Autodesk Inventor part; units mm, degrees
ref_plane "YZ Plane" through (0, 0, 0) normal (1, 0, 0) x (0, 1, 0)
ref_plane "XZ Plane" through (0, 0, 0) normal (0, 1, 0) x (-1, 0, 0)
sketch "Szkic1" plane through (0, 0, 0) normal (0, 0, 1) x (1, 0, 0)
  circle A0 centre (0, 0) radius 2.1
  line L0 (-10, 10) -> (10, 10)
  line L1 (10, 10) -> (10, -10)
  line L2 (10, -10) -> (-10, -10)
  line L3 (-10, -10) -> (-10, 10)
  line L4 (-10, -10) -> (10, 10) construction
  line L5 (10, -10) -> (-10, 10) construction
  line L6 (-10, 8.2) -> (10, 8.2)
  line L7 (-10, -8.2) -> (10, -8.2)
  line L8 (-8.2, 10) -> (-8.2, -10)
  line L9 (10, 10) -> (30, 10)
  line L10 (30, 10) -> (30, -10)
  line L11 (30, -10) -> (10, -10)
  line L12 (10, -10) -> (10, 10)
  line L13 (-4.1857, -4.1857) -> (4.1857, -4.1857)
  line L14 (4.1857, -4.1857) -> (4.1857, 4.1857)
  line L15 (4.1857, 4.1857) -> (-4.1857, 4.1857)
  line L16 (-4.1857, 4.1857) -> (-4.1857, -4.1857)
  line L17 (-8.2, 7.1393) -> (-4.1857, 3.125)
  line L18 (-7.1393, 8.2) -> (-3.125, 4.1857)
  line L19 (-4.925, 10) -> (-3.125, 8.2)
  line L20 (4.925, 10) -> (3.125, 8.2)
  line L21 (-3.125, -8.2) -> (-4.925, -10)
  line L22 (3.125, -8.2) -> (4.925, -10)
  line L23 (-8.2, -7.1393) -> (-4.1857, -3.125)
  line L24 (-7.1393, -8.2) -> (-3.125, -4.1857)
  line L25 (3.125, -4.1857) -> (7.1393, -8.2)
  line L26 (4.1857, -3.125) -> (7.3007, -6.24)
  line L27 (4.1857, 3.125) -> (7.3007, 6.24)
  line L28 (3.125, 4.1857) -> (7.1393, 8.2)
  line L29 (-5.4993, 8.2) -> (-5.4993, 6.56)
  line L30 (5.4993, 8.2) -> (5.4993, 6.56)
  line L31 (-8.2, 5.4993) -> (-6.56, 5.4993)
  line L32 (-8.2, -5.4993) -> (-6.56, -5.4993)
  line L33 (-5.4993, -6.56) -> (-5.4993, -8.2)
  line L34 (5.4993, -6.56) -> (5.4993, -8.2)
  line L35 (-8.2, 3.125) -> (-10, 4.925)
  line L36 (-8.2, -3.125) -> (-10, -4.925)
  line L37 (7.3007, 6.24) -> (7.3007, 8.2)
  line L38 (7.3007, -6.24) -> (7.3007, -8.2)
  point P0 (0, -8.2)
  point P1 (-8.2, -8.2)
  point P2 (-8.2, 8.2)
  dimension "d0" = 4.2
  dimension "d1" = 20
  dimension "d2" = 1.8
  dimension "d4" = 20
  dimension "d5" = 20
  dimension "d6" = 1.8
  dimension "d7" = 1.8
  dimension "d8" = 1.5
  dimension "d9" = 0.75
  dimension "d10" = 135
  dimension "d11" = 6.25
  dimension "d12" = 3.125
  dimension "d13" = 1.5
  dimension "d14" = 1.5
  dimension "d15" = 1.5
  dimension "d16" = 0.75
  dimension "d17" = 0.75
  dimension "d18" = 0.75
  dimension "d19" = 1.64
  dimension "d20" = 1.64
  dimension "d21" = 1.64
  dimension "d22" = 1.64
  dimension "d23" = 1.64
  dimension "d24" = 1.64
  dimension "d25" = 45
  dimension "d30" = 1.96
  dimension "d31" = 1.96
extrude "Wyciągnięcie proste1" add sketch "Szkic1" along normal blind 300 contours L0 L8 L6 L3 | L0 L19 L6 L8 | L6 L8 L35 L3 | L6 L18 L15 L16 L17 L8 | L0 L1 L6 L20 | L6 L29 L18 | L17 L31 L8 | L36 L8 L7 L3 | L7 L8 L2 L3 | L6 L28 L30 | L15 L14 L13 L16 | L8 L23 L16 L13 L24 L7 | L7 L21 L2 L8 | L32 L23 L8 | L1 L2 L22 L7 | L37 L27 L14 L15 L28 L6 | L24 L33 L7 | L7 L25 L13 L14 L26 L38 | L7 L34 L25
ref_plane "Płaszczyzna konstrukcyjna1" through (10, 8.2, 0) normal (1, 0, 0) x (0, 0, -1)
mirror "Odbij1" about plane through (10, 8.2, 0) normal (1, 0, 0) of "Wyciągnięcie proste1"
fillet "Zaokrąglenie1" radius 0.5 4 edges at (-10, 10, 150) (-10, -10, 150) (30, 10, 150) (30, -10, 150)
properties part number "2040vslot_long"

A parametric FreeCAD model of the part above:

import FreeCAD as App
import Part
import Sketcher


def edges_at(feature, points):
    """Names of the edges that pass closest to the given points."""
    edges = feature.Shape.Edges
    near = lambda p: min(range(len(edges)), key=lambda i: edges[i].distToShape(Part.Vertex(*p))[0])
    return sorted({f"Edge{near(p) + 1}" for p in points})


def add_polygon(sketch, points):
    """Adds a closed chain of lines whose ends are joined by coincident constraints."""
    first, n = sketch.GeometryCount, len(points)
    for a, b in zip(points, points[1:] + points[:1]):
        sketch.addGeometry(Part.LineSegment(App.Vector(*a, 0), App.Vector(*b, 0)), False)
    for i in range(n):
        sketch.addConstraint(Sketcher.Constraint("Coincident", first + i, 2, first + (i + 1) % n, 1))

doc = App.newDocument("Part")
params = doc.addObject("Spreadsheet::Sheet", "Params")
for row, (alias, value) in enumerate([
    ("sketch1_diameter", "4.2 mm"),
    ("sketch1_height", "1.8 mm"),
    ("sketch1_width", "1.64 mm"),
    ("sketch1_width2", "6.25 mm"),
    ("sketch1_height2", "1.96 mm"),
    ("pad1_length", "300 mm"),
    ("fillet_radius", "0.5 mm"),
], start=1):
    params.set(f"A{row}", alias)
    params.set(f"B{row}", "=" + value)
    params.setAlias(f"B{row}", alias)

body = doc.addObject("PartDesign::Body", "Body")

# Sketch on XY plane
sketch1 = doc.addObject("Sketcher::SketchObject", "Sketch")
body.addObject(sketch1)
sketch1.AttachmentSupport = (doc.XY_Plane, [""])
sketch1.MapMode = "FlatFace"
add_polygon(sketch1, [(-10, 10), (-10, 4.925), (-8.2, 3.125), (-8.2, 5.4993), (-6.56, 5.4993), (-4.1857, 3.125), (-4.1857, -3.125), (-6.56, -5.4993), (-8.2, -5.4993), (-8.2, -3.125), (-10, -4.925), (-10, -10), (-4.925, -10), (-3.125, -8.2), (-5.4993, -8.2), (-5.4993, -6.56), (-3.125, -4.1857), (3.125, -4.1857), (5.4993, -6.56), (5.4993, -8.2), (3.125, -8.2), (4.925, -10), (10, -10), (10, -8.2), (7.3007, -8.2), (7.3007, -6.24), (4.1857, -3.125), (4.1857, 3.125), (7.3007, 6.24), (7.3007, 8.2), (10, 8.2), (10, 10), (4.925, 10), (3.125, 8.2), (5.4993, 8.2), (5.4993, 6.56), (3.125, 4.1857), (-3.125, 4.1857), (-5.4993, 6.56), (-5.4993, 8.2), (-3.125, 8.2), (-4.925, 10)])  # lines 0-41
sketch1.addGeometry(Part.Circle(App.Vector(0, 0, 0), App.Vector(0, 0, 1), 2.1), False)  # 42
sketch1.addConstraint([
    Sketcher.Constraint("Vertical", 0),
    Sketcher.Constraint("Vertical", 2),
    Sketcher.Constraint("Horizontal", 3),
    Sketcher.Constraint("Vertical", 5),
    Sketcher.Constraint("Horizontal", 7),
    Sketcher.Constraint("Vertical", 8),
    Sketcher.Constraint("Vertical", 10),
    Sketcher.Constraint("Horizontal", 11),
    Sketcher.Constraint("Horizontal", 13),
    Sketcher.Constraint("Vertical", 14),
    Sketcher.Constraint("Horizontal", 16),
    Sketcher.Constraint("Vertical", 18),
    Sketcher.Constraint("Horizontal", 19),
    Sketcher.Constraint("Horizontal", 21),
    Sketcher.Constraint("Vertical", 22),
    Sketcher.Constraint("Horizontal", 23),
    Sketcher.Constraint("Vertical", 24),
    Sketcher.Constraint("Vertical", 26),
    Sketcher.Constraint("Vertical", 28),
    Sketcher.Constraint("Horizontal", 29),
    Sketcher.Constraint("Vertical", 30),
    Sketcher.Constraint("Horizontal", 31),
    Sketcher.Constraint("Horizontal", 33),
    Sketcher.Constraint("Vertical", 34),
    Sketcher.Constraint("Horizontal", 36),
    Sketcher.Constraint("Vertical", 38),
    Sketcher.Constraint("Horizontal", 39),
    Sketcher.Constraint("Horizontal", 41),
    Sketcher.Constraint("Coincident", 42, 3, -1, 1),
    Sketcher.Constraint("Symmetric", 4, 2, 25, 2, -1, 1),
    Sketcher.Constraint("Symmetric", 10, 2, 30, 2, -1, 1),
    Sketcher.Constraint("Symmetric", 12, 2, 32, 2, -1, 1),
    Sketcher.Constraint("Symmetric", 14, 2, 34, 2, -1, 1),
    Sketcher.Constraint("Symmetric", 15, 2, 35, 2, -1, 1),
    Sketcher.Constraint("Symmetric", 17, 2, 37, 2, -1, 1),
    Sketcher.Constraint("Symmetric", 19, 2, 39, 2, -1, 1),
    Sketcher.Constraint("Symmetric", 20, 2, 40, 2, -1, 1),
    Sketcher.Constraint("Symmetric", 14, 2, 17, 2, -2),
    Sketcher.Constraint("Symmetric", 12, 2, 19, 2, -2),
    Sketcher.Constraint("Symmetric", 11, 2, 20, 2, -2),
    Sketcher.Constraint("Symmetric", 3, 2, 6, 2, -1),
    Sketcher.Constraint("Symmetric", 1, 2, 8, 2, -1),
    Sketcher.Constraint("Symmetric", 0, 2, 9, 2, -1),
    Sketcher.Constraint("Symmetric", 24, 2, 27, 2, -1),
    Sketcher.Constraint("Symmetric", 22, 2, 29, 2, -1),
    Sketcher.Constraint("Parallel", 1, 4),
    Sketcher.Constraint("Perpendicular", 4, 6),
    Sketcher.Constraint("Parallel", 6, 9),
    Sketcher.Constraint("Parallel", 9, 12),
    Sketcher.Constraint("Parallel", 12, 15),
    Sketcher.Constraint("Perpendicular", 15, 17),
    Sketcher.Constraint("Parallel", 20, 25),
    Sketcher.Constraint("Perpendicular", 25, 27),
    Sketcher.Constraint("Parallel", 27, 32),
    Sketcher.Constraint("Perpendicular", 35, 37),
    Sketcher.Constraint("Horizontal", 1, 2, 4, 2),
    Sketcher.Constraint("Horizontal", 19, 2, 22, 2),
    Sketcher.Constraint("Vertical", 12, 2, 15, 2),
    Sketcher.Constraint("Equal", 41, 0),
    Sketcher.Constraint("Equal", 39, 2),
    Sketcher.Constraint("Equal", 36, 5),
    Sketcher.Constraint("Equal", 7, 14),
    Sketcher.Constraint("Equal", 9, 12),
    Sketcher.Constraint("Diameter", 42, 4.2),
    Sketcher.Constraint("DistanceY", 22, 1, 22, 2, 1.8),
    Sketcher.Constraint("DistanceX", 3, 1, 3, 2, 1.64),
    Sketcher.Constraint("DistanceX", 16, 1, 16, 2, 6.25),
    Sketcher.Constraint("DistanceY", 24, 1, 24, 2, 1.96),
    Sketcher.Constraint("DistanceX", 0, 2, -1, 1, 10.0),
    Sketcher.Constraint("DistanceX", 13, 2, 13, 1, 2.3743),
])
sketch1.setExpression("Constraints[105]", "Params.sketch1_diameter")
sketch1.setExpression("Constraints[106]", "Params.sketch1_height")
sketch1.setExpression("Constraints[107]", "Params.sketch1_width")
sketch1.setExpression("Constraints[108]", "Params.sketch1_width2")
sketch1.setExpression("Constraints[109]", "Params.sketch1_height2")
pad1 = doc.addObject("PartDesign::Pad", "Pad")
body.addObject(pad1)
pad1.Profile = sketch1
pad1.setExpression("Length", "Params.pad1_length")
doc.recompute()

datumplane = doc.addObject("PartDesign::Plane", "DatumPlane")
body.addObject(datumplane)
datumplane.AttachmentSupport = (doc.YZ_Plane, [""])
datumplane.MapMode = "FlatFace"
datumplane.AttachmentOffset = App.Placement(App.Vector(0, 0, 10), App.Rotation())
mirrored = doc.addObject("PartDesign::Mirrored", "Mirrored")
body.addObject(mirrored)
mirrored.Originals = [pad1]
mirrored.MirrorPlane = (datumplane, [""])
body.Tip = mirrored
doc.recompute()

fillet = doc.addObject("PartDesign::Fillet", "Fillet")
body.addObject(fillet)
fillet.Base = (mirrored, edges_at(mirrored, [
    (-10, 10, 150),
    (-10, -10, 150),
    (30, 10, 150),
    (30, -10, 150),
]))
fillet.setExpression("Radius", "Params.fillet_radius")

doc.recompute()
